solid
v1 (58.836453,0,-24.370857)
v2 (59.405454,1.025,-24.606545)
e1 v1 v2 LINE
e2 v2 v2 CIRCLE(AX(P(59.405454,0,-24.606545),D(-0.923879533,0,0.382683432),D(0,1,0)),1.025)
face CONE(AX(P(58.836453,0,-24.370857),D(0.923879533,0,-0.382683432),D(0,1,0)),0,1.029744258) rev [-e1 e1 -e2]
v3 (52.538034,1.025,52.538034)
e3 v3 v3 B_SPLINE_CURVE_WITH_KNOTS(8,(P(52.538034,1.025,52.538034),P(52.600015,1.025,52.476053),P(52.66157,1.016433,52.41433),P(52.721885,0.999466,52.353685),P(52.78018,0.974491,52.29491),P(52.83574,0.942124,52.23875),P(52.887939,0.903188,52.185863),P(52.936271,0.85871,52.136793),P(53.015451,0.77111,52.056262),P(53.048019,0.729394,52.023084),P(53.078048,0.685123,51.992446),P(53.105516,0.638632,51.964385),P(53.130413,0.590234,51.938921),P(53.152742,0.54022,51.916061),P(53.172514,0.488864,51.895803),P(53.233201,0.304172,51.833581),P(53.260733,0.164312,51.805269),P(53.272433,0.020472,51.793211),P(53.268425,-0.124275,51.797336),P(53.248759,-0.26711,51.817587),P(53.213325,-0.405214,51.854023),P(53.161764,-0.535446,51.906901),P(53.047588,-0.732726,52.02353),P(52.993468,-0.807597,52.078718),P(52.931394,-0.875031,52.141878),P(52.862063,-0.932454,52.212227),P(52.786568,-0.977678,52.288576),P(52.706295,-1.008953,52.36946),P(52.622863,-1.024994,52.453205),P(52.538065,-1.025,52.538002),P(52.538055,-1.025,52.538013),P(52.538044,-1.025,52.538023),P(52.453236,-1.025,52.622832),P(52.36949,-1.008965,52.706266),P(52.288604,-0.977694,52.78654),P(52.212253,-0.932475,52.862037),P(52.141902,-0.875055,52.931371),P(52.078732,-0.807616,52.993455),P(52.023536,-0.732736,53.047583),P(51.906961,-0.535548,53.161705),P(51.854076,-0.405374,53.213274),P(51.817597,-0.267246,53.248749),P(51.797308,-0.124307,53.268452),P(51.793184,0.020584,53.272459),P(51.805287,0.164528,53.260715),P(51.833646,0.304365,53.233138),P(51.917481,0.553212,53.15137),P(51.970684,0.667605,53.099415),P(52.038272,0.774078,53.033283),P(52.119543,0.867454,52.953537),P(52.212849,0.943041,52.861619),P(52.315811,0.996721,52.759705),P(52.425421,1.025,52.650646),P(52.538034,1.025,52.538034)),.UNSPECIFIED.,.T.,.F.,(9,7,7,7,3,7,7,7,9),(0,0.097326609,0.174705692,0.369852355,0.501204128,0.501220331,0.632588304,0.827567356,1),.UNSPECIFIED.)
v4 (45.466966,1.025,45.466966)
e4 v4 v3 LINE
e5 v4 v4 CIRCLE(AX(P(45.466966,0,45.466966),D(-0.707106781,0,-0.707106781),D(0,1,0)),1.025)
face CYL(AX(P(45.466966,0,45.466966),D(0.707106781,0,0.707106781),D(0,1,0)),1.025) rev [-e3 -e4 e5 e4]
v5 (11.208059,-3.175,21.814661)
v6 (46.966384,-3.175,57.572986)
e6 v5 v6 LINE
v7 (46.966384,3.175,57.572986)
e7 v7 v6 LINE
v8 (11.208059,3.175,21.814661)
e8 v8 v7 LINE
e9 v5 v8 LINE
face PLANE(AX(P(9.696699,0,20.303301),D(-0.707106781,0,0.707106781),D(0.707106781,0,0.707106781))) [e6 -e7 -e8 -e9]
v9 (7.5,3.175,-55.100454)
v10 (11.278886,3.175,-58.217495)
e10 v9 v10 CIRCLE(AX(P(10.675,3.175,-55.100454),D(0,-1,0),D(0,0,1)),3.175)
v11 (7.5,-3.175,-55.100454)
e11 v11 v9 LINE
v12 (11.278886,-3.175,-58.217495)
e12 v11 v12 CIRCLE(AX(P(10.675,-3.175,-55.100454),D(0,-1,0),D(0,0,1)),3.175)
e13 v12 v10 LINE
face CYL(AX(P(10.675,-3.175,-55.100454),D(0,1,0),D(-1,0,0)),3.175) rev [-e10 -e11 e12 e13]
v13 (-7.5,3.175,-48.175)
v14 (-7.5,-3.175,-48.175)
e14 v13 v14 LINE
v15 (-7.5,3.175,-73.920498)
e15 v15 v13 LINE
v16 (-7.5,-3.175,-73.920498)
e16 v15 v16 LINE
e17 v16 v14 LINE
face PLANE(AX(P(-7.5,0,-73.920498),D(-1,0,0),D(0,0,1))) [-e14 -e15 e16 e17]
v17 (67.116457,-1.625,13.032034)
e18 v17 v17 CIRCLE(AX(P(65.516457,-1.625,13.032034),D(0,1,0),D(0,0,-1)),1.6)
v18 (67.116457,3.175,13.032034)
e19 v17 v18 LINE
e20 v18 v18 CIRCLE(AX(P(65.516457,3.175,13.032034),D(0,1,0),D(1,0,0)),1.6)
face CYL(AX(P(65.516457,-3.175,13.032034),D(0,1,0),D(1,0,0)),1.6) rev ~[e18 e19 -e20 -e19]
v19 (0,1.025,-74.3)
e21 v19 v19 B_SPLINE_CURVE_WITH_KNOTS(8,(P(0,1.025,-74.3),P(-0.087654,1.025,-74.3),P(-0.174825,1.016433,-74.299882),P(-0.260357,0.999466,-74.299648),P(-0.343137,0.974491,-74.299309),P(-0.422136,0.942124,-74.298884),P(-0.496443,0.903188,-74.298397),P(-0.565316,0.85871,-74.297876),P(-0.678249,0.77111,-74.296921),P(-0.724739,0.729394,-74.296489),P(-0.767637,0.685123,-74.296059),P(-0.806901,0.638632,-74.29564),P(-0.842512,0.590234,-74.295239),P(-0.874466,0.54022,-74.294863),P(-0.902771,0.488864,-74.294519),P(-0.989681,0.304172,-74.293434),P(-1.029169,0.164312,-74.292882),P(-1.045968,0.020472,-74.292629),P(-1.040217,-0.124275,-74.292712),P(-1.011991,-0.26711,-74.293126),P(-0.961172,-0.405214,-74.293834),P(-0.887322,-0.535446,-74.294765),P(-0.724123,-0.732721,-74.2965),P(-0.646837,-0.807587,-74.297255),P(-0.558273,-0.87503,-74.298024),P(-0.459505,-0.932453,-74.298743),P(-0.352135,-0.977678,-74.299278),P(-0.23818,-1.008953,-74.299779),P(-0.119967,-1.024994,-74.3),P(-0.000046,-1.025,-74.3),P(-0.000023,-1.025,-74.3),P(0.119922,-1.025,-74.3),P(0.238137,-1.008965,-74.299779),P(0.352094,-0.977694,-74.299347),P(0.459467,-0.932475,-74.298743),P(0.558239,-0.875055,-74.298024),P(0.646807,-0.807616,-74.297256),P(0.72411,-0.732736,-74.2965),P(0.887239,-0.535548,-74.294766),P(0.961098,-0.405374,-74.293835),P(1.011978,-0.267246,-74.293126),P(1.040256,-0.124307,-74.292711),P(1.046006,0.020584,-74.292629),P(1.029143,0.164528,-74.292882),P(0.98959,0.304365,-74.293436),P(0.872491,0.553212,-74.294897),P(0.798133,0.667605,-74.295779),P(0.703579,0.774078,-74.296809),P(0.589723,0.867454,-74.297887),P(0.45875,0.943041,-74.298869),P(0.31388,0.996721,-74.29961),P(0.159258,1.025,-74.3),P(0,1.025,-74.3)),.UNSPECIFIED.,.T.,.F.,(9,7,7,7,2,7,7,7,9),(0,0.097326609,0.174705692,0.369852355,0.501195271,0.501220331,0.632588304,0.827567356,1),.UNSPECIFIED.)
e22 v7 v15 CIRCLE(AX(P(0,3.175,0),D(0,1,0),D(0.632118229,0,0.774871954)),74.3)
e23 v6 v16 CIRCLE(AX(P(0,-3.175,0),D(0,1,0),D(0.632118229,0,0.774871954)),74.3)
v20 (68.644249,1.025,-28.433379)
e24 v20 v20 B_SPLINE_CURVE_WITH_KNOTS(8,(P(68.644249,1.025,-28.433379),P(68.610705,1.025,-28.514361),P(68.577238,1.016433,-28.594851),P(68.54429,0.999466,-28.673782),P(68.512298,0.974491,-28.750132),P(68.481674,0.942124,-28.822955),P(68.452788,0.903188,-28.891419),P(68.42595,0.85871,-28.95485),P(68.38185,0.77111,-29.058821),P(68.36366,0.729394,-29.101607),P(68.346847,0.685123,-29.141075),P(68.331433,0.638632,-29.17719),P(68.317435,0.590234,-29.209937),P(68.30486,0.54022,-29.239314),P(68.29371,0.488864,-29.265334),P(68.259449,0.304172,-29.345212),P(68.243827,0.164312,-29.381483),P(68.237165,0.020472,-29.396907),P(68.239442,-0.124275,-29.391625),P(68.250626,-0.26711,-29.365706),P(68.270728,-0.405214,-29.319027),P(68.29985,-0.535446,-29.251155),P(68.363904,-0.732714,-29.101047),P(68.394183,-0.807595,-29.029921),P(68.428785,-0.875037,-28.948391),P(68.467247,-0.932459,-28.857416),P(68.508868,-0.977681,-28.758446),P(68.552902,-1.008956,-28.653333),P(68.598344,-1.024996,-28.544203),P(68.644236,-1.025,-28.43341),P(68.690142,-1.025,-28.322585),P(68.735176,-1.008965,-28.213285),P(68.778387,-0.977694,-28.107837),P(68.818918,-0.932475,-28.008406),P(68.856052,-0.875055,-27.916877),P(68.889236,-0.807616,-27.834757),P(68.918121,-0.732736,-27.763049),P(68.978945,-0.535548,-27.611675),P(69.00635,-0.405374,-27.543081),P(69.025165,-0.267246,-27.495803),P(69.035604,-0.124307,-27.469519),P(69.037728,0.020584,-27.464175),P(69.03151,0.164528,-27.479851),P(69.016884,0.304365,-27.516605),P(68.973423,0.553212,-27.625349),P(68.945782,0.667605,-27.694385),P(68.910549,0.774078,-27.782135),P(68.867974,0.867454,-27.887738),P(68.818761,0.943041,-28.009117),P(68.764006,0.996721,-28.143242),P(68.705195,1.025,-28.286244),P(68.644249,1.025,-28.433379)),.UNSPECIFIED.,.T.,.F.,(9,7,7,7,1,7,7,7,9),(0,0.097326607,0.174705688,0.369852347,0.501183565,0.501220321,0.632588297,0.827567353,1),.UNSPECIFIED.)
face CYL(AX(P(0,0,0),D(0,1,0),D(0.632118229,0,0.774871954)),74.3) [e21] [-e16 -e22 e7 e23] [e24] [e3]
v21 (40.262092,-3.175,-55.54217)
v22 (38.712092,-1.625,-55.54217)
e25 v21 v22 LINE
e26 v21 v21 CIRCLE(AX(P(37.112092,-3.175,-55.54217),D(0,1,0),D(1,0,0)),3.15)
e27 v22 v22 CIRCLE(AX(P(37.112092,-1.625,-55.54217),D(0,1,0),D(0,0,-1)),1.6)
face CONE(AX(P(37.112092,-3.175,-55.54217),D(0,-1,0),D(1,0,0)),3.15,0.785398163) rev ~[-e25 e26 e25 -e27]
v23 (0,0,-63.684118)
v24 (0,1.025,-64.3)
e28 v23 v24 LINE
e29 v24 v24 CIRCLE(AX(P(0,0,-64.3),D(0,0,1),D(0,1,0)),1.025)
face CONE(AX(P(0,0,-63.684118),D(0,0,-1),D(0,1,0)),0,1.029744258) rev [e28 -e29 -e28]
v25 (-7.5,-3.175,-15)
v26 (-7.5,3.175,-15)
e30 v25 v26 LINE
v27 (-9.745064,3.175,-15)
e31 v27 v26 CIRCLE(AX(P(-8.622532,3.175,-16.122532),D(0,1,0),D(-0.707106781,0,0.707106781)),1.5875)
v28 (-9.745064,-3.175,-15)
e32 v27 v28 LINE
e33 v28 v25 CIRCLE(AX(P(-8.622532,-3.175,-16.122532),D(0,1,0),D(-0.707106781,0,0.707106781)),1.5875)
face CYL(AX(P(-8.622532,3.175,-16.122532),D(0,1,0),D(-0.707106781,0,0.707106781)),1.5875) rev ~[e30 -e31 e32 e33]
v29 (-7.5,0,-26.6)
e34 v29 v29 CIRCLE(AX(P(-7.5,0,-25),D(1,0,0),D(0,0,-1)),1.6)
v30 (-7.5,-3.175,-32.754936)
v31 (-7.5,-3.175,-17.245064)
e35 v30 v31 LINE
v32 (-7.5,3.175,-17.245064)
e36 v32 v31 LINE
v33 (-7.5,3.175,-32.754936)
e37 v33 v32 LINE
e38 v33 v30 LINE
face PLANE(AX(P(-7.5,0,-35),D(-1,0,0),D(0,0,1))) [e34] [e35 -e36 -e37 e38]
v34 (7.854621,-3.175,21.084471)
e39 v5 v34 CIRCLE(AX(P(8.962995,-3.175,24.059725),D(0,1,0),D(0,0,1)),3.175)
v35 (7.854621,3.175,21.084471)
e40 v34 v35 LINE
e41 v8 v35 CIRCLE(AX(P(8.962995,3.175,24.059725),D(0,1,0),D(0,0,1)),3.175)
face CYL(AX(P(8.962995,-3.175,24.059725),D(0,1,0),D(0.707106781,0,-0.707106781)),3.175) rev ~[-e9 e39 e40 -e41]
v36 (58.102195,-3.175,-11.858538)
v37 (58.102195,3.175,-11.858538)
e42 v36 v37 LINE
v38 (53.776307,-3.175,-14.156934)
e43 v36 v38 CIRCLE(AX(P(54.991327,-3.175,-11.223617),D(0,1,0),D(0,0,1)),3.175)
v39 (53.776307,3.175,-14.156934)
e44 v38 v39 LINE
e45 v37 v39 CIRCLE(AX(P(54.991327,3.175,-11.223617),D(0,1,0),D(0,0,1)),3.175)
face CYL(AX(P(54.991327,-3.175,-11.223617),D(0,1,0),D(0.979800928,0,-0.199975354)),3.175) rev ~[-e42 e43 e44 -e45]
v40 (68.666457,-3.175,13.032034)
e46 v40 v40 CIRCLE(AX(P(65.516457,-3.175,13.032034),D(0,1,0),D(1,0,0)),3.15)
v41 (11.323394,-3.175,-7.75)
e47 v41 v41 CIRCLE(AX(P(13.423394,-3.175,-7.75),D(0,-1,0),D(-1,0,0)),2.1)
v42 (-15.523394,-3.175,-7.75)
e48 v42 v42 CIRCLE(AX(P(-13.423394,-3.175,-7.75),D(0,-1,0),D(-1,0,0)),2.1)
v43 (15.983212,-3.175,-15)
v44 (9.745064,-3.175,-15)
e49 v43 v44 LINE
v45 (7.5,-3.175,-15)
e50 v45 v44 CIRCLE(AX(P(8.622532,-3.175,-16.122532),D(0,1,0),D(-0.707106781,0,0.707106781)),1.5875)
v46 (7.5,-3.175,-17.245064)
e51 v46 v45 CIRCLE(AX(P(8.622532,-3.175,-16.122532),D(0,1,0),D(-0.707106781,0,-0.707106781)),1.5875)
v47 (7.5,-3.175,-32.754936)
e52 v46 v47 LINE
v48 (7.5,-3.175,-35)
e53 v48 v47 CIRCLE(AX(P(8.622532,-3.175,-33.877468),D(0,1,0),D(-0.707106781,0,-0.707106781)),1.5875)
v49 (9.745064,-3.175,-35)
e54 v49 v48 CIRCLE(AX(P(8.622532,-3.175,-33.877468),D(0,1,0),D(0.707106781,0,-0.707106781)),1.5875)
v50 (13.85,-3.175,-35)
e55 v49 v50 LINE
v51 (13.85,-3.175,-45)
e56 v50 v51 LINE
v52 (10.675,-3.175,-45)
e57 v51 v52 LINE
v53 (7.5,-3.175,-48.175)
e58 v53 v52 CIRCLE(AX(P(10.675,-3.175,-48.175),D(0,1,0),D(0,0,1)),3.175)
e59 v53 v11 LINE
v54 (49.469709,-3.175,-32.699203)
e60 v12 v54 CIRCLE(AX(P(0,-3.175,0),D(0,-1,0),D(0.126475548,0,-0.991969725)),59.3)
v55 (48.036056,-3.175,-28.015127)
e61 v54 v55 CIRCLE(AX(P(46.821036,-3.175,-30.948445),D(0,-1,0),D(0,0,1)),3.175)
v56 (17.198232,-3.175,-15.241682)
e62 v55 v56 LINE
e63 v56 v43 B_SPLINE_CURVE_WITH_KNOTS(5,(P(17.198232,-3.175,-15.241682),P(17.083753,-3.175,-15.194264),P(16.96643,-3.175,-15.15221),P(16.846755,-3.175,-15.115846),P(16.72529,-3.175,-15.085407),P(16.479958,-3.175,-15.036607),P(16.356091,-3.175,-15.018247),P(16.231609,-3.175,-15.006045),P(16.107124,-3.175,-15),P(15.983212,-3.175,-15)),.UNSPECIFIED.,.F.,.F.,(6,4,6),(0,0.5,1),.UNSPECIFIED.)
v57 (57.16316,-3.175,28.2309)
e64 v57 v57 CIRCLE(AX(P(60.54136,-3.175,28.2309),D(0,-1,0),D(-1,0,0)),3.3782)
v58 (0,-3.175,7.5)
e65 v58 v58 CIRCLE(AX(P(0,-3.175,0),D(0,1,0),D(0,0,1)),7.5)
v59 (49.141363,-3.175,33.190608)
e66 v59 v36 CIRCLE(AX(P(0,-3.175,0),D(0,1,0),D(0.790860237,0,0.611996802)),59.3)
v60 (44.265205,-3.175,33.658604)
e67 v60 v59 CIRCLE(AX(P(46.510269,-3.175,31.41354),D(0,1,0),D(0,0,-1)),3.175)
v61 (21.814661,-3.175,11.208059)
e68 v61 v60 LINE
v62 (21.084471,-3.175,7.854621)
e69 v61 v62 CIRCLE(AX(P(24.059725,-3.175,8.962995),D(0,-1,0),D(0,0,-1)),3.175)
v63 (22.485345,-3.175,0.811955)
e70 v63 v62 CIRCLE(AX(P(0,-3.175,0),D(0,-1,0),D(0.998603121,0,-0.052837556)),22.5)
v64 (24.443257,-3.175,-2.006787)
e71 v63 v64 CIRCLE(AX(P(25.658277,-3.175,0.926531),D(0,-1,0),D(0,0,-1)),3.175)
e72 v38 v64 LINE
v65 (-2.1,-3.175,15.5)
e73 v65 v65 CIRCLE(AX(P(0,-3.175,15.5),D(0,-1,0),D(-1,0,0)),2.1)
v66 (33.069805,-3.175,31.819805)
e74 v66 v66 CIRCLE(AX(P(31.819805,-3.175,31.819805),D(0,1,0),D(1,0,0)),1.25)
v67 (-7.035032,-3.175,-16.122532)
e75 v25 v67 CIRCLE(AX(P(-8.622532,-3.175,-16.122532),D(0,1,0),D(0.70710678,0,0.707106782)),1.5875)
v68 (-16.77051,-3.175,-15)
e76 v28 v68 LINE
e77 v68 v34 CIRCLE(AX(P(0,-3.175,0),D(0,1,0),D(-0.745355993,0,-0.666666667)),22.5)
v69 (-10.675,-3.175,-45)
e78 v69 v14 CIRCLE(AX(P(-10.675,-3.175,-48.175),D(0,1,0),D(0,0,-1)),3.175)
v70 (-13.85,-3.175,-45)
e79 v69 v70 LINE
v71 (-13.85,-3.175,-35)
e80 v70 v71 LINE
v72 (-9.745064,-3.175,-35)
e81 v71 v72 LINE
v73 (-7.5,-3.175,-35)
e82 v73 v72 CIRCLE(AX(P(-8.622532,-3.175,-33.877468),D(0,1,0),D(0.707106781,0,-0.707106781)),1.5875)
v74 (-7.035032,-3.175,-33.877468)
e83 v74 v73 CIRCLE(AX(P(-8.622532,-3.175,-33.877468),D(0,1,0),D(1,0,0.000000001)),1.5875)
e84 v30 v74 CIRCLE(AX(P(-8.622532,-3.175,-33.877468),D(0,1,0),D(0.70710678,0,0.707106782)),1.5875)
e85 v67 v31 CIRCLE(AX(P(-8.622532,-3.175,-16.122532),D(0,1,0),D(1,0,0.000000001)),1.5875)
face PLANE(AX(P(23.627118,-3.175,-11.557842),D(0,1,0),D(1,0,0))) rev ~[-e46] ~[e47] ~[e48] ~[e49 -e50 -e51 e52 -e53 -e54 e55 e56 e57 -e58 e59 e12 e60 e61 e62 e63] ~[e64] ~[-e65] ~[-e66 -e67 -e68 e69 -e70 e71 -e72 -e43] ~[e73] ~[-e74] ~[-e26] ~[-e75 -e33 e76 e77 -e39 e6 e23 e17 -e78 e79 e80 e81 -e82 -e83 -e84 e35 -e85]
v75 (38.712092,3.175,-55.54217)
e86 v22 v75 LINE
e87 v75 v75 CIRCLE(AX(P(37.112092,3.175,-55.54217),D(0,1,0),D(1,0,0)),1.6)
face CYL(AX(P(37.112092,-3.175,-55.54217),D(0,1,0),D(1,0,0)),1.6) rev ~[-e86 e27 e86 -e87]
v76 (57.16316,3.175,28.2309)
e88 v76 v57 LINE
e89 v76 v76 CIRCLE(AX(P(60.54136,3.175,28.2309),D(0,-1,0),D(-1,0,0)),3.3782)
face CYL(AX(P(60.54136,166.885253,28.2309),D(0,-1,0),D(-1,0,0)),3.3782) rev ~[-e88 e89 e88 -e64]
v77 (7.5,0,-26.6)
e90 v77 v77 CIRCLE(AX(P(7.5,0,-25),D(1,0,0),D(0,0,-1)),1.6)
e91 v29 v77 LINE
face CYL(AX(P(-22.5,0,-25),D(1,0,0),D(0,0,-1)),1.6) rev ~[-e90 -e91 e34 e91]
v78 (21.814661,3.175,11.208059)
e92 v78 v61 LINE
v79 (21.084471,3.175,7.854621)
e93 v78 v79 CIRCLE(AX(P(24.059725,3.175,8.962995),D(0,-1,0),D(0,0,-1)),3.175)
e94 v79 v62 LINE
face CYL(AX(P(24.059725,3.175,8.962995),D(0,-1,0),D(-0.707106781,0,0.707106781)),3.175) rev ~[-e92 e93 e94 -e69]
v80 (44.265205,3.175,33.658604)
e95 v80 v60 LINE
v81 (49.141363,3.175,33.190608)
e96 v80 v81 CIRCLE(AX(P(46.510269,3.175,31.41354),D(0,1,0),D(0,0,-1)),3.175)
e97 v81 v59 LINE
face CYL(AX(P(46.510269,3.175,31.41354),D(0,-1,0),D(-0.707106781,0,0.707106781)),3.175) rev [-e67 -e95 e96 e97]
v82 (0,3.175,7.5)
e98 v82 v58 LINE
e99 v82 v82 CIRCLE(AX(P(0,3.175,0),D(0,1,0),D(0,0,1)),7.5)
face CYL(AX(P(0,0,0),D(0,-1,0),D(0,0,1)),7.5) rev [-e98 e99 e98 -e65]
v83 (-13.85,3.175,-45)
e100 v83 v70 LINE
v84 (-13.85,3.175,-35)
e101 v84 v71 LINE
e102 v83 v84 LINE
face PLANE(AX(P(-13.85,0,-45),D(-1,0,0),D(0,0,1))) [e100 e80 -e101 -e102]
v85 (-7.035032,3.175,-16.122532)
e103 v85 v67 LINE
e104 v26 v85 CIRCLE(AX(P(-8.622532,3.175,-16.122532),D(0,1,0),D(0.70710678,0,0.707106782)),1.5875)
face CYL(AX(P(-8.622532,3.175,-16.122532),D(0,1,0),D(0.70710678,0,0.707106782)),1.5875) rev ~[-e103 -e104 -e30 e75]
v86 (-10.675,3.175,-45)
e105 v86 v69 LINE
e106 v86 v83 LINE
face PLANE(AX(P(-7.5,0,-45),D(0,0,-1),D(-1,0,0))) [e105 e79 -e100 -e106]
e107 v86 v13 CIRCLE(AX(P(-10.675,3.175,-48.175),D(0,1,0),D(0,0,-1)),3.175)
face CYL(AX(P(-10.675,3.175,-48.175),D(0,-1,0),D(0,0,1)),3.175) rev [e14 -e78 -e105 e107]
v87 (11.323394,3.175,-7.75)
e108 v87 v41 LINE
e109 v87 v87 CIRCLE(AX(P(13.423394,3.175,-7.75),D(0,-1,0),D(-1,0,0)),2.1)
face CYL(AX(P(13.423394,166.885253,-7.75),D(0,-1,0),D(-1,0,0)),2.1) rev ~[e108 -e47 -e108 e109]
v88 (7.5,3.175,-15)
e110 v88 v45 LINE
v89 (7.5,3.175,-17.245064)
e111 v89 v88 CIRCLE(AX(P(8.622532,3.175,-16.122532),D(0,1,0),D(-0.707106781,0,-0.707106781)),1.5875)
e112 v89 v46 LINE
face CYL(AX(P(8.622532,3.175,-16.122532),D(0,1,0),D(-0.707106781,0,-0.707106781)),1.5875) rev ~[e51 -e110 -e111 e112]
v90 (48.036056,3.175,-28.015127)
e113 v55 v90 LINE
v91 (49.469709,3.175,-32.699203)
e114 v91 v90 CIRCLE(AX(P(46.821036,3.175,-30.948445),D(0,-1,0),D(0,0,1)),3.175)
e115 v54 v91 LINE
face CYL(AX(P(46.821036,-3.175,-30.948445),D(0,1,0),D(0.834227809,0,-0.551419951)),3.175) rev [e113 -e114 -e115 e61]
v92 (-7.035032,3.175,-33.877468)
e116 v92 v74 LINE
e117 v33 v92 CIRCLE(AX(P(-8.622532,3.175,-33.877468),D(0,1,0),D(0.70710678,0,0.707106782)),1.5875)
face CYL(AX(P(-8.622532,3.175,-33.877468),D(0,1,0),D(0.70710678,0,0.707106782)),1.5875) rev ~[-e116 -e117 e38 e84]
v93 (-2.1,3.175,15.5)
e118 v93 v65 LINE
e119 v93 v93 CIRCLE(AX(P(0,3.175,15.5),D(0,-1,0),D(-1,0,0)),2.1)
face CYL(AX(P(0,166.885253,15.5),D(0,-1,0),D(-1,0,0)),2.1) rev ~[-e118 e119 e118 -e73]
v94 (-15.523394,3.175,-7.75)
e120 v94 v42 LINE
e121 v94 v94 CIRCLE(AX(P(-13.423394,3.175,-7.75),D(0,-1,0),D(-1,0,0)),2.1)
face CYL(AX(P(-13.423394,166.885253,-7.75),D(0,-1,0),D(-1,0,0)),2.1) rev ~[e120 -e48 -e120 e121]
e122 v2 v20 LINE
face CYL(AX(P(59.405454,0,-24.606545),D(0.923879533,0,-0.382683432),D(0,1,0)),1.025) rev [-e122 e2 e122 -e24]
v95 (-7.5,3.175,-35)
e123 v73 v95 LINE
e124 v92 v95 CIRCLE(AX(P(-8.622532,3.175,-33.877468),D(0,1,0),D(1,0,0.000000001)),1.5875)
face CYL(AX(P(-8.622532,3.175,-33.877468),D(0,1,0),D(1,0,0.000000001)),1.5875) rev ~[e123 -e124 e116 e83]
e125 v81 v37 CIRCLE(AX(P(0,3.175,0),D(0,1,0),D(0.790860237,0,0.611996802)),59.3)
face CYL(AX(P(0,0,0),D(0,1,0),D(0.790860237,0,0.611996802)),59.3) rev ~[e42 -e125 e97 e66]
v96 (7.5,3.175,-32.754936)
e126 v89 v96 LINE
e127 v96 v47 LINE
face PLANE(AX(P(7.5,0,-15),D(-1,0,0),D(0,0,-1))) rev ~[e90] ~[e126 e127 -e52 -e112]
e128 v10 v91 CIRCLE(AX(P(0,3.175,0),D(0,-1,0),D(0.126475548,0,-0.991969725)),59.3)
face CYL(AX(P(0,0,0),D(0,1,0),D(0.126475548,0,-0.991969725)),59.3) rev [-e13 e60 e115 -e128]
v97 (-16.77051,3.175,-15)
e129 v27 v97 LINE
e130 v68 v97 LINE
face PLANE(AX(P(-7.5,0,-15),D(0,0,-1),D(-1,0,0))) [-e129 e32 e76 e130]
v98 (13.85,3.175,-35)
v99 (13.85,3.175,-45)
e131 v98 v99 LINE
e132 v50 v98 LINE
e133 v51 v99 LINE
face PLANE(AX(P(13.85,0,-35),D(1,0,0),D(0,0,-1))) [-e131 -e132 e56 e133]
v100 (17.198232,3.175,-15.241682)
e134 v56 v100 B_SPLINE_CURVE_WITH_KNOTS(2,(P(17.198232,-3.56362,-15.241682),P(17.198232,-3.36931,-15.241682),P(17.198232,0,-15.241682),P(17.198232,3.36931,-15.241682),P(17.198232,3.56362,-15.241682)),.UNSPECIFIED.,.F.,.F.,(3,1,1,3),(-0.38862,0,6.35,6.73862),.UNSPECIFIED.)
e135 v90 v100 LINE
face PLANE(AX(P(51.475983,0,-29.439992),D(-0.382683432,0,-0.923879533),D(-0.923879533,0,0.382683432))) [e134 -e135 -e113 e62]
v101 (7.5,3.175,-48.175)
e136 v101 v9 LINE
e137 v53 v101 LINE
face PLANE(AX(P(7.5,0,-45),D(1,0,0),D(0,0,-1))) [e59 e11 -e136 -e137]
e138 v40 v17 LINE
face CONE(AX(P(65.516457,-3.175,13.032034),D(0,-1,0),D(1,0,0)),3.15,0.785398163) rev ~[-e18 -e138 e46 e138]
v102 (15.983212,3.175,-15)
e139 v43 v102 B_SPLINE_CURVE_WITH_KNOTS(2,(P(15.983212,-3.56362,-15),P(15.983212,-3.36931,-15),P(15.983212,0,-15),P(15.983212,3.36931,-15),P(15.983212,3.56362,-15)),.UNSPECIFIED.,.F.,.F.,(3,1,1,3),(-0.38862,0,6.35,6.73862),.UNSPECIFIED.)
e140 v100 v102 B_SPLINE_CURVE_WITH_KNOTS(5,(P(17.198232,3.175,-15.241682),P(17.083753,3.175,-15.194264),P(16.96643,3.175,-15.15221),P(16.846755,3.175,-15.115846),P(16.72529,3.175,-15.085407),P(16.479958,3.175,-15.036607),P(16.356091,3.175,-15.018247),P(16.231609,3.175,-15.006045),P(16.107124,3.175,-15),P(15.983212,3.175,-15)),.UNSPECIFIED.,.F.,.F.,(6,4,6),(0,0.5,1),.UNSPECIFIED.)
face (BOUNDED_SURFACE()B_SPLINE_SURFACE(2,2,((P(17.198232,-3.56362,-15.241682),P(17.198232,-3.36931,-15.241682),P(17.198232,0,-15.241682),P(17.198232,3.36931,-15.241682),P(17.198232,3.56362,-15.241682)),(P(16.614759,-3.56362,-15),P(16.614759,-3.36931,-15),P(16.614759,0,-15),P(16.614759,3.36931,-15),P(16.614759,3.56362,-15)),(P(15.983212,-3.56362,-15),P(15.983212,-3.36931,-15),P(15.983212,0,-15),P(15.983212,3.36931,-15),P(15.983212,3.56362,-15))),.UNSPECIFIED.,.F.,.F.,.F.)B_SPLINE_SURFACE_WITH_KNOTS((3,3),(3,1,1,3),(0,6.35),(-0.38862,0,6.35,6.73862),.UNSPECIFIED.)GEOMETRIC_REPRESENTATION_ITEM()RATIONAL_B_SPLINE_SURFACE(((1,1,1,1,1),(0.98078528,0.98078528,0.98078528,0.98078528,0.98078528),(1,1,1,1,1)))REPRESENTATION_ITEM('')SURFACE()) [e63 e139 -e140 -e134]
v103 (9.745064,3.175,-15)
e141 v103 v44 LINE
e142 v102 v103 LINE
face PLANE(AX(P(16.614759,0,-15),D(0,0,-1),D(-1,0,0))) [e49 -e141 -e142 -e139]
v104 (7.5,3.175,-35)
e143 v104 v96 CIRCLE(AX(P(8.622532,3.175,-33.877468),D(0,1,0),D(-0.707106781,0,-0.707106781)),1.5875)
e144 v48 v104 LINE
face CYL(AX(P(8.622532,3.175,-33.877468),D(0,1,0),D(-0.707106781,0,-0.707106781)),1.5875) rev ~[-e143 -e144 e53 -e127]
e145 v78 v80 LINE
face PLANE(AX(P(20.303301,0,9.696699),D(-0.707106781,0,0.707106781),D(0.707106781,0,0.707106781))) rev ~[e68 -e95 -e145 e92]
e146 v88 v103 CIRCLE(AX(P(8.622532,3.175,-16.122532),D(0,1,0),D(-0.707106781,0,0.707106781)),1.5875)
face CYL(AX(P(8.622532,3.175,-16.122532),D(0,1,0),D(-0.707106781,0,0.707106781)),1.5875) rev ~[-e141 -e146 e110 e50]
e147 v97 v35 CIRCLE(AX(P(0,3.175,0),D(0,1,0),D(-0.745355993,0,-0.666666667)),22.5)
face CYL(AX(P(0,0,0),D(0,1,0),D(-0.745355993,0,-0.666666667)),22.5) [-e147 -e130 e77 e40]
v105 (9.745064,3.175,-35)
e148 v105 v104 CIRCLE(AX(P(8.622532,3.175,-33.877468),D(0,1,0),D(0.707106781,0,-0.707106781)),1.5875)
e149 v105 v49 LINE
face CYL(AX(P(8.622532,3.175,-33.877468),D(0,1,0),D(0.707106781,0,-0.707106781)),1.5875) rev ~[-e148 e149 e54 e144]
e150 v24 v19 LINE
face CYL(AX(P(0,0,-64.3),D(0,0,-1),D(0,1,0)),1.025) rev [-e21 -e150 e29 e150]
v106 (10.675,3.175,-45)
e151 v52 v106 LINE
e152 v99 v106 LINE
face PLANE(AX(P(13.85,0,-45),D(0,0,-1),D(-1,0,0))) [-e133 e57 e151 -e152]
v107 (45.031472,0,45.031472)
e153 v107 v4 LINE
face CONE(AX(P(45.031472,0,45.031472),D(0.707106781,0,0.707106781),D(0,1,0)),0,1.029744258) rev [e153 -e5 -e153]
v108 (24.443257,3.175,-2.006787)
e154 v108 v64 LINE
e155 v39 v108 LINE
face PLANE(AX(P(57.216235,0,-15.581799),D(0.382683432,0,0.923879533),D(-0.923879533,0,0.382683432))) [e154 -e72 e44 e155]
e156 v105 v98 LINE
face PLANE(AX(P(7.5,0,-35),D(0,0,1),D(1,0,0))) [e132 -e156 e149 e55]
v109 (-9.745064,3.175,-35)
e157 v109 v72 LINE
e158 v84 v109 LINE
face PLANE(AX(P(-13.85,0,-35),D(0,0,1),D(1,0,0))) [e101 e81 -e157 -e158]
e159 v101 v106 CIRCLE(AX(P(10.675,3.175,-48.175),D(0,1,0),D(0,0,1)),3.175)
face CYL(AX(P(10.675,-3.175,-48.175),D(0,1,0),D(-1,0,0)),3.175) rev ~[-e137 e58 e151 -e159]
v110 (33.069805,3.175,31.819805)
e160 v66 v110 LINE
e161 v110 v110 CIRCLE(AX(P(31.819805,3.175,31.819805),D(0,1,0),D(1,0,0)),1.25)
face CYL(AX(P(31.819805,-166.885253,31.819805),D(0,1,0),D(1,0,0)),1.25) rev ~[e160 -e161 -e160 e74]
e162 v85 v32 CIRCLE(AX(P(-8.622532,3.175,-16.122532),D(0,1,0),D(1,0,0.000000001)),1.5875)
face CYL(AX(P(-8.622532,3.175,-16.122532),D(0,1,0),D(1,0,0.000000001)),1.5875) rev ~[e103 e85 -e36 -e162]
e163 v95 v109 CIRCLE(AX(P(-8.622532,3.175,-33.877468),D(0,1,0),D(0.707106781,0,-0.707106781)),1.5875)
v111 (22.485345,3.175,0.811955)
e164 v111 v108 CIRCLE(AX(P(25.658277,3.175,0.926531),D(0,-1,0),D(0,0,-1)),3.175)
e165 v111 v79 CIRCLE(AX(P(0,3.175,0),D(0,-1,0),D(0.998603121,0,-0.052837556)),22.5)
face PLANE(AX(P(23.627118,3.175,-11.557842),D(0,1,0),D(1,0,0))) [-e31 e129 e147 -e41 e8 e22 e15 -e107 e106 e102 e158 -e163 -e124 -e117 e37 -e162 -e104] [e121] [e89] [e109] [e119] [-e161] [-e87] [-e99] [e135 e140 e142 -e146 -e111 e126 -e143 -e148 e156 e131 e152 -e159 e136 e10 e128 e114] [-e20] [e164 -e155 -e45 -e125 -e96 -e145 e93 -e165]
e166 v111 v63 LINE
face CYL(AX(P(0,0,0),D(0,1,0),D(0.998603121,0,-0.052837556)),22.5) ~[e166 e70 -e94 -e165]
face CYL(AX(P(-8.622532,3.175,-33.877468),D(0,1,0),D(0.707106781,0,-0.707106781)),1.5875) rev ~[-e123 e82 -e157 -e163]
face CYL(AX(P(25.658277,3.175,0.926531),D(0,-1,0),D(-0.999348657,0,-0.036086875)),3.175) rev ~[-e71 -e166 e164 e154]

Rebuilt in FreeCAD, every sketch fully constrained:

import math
import FreeCAD as App
import Part
import Sketcher
Q = App.Units.Quantity


def edges_at(feature, points):
    """Names of the edges that pass closest to the given points."""
    edges = feature.Shape.Edges
    near = lambda p: min(range(len(edges)), key=lambda i: edges[i].distToShape(Part.Vertex(*p))[0])
    return sorted({f"Edge{near(p) + 1}" for p in points})


def add_polygon(sketch, points):
    """Adds a closed chain of lines whose ends are joined by coincident constraints."""
    first, n = sketch.GeometryCount, len(points)
    for a, b in zip(points, points[1:] + points[:1]):
        sketch.addGeometry(Part.LineSegment(App.Vector(*a, 0), App.Vector(*b, 0)), False)
    for i in range(n):
        sketch.addConstraint(Sketcher.Constraint("Coincident", first + i, 2, first + (i + 1) % n, 1))

doc = App.newDocument("Part")
body = doc.addObject("PartDesign::Body", "Body")

sketch1 = body.newObject("Sketcher::SketchObject", "Sketch")
sketch1.AttachmentSupport = (doc.getObject("XZ_Plane"), [""])
sketch1.MapMode = "FlatFace"
sketch1.addGeometry(Part.LineSegment(App.Vector(-13.85, -35, 0), App.Vector(-7.5, -35, 0)), False)
sketch1.addGeometry(Part.LineSegment(App.Vector(-7.5, -35, 0), App.Vector(-7.5, -15, 0)), False)
sketch1.addGeometry(Part.LineSegment(App.Vector(-7.5, -15, 0), App.Vector(-16.77, -15, 0)), False)
sketch1.addGeometry(Part.ArcOfCircle(Part.Circle(App.Vector(0, 0, 0), App.Vector(0, 0, 1), 22.5), math.radians(64), math.radians(222)), False)
sketch1.addGeometry(Part.LineSegment(App.Vector(9.7, 20.3, 0), App.Vector(46.97, 57.57, 0)), False)
sketch1.addGeometry(Part.ArcOfCircle(Part.Circle(App.Vector(0, 0, 0), App.Vector(0, 0, 1), 74.3), math.radians(-96), math.radians(51)), False)
sketch1.addGeometry(Part.LineSegment(App.Vector(-7.5, -73.92, 0), App.Vector(-7.5, -45, 0)), False)
sketch1.addGeometry(Part.LineSegment(App.Vector(-7.5, -45, 0), App.Vector(-13.85, -45, 0)), False)
sketch1.addGeometry(Part.LineSegment(App.Vector(-13.85, -45, 0), App.Vector(-13.85, -35, 0)), False)
sketch1.addGeometry(Part.Circle(App.Vector(0, 0, 0), App.Vector(0, 0, 1), 7.5), False)
sketch1.addGeometry(Part.LineSegment(App.Vector(46.9, 36.29, 0), App.Vector(20.3, 9.7, 0)), False)
sketch1.addGeometry(Part.ArcOfCircle(Part.Circle(App.Vector(0, 0, 0), App.Vector(0, 0, 1), 22.5), math.radians(-3), math.radians(26)), False)
sketch1.addGeometry(Part.LineSegment(App.Vector(22.47, -1.19, 0), App.Vector(57.22, -15.58, 0)), False)
sketch1.addGeometry(Part.ArcOfCircle(Part.Circle(App.Vector(0, 0, 0), App.Vector(0, 0, 1), 59.3), math.radians(-15), math.radians(38)), False)
sketch1.addGeometry(Part.LineSegment(App.Vector(16.61, -15, 0), App.Vector(7.5, -15, 0)), False)
sketch1.addGeometry(Part.LineSegment(App.Vector(7.5, -15, 0), App.Vector(7.5, -35, 0)), False)
sketch1.addGeometry(Part.LineSegment(App.Vector(7.5, -35, 0), App.Vector(13.85, -35, 0)), False)
sketch1.addGeometry(Part.LineSegment(App.Vector(13.85, -35, 0), App.Vector(13.85, -45, 0)), False)
sketch1.addGeometry(Part.LineSegment(App.Vector(13.85, -45, 0), App.Vector(7.5, -45, 0)), False)
sketch1.addGeometry(Part.LineSegment(App.Vector(7.5, -45, 0), App.Vector(7.5, -58.82, 0)), False)
sketch1.addGeometry(Part.ArcOfCircle(Part.Circle(App.Vector(0, 0, 0), App.Vector(0, 0, 1), 59.3), math.radians(-83), math.radians(-30)), False)
sketch1.addGeometry(Part.LineSegment(App.Vector(51.48, -29.44, 0), App.Vector(16.73, -15.05, 0)), False)
sketch1.addGeometry(Part.LineSegment(App.Vector(16.73, -15.05, 0), App.Vector(16.61, -15, 0)), False)
sketch1.addConstraint(Sketcher.Constraint("Coincident", 0, 2, 1, 1))
sketch1.addConstraint(Sketcher.Constraint("Coincident", 1, 2, 2, 1))
sketch1.addConstraint(Sketcher.Constraint("Coincident", 2, 2, 3, 2))
sketch1.addConstraint(Sketcher.Constraint("Coincident", 3, 1, 4, 1))
sketch1.addConstraint(Sketcher.Constraint("Coincident", 4, 2, 5, 2))
sketch1.addConstraint(Sketcher.Constraint("Coincident", 5, 1, 6, 1))
sketch1.addConstraint(Sketcher.Constraint("Coincident", 6, 2, 7, 1))
sketch1.addConstraint(Sketcher.Constraint("Coincident", 7, 2, 8, 1))
sketch1.addConstraint(Sketcher.Constraint("Coincident", 8, 2, 0, 1))
sketch1.addConstraint(Sketcher.Constraint("Coincident", 10, 2, 11, 2))
sketch1.addConstraint(Sketcher.Constraint("Coincident", 11, 1, 12, 1))
sketch1.addConstraint(Sketcher.Constraint("Coincident", 12, 2, 13, 1))
sketch1.addConstraint(Sketcher.Constraint("Coincident", 13, 2, 10, 1))
sketch1.addConstraint(Sketcher.Constraint("Coincident", 14, 2, 15, 1))
sketch1.addConstraint(Sketcher.Constraint("Coincident", 15, 2, 16, 1))
sketch1.addConstraint(Sketcher.Constraint("Coincident", 16, 2, 17, 1))
sketch1.addConstraint(Sketcher.Constraint("Coincident", 17, 2, 18, 1))
sketch1.addConstraint(Sketcher.Constraint("Coincident", 18, 2, 19, 1))
sketch1.addConstraint(Sketcher.Constraint("Coincident", 19, 2, 20, 1))
sketch1.addConstraint(Sketcher.Constraint("Coincident", 20, 2, 21, 1))
sketch1.addConstraint(Sketcher.Constraint("Coincident", 21, 2, 22, 1))
sketch1.addConstraint(Sketcher.Constraint("Coincident", 22, 2, 14, 1))
sketch1.addConstraint(Sketcher.Constraint("Horizontal", 0))
sketch1.addConstraint(Sketcher.Constraint("Vertical", 1))
sketch1.addConstraint(Sketcher.Constraint("Horizontal", 2))
sketch1.addConstraint(Sketcher.Constraint("Vertical", 6))
sketch1.addConstraint(Sketcher.Constraint("Horizontal", 7))
sketch1.addConstraint(Sketcher.Constraint("Vertical", 8))
sketch1.addConstraint(Sketcher.Constraint("Horizontal", 14))
sketch1.addConstraint(Sketcher.Constraint("Vertical", 15))
sketch1.addConstraint(Sketcher.Constraint("Horizontal", 16))
sketch1.addConstraint(Sketcher.Constraint("Vertical", 17))
sketch1.addConstraint(Sketcher.Constraint("Horizontal", 18))
sketch1.addConstraint(Sketcher.Constraint("Vertical", 19))
sketch1.addConstraint(Sketcher.Constraint("Coincident", 3, 3, -1, 1))
sketch1.addConstraint(Sketcher.Constraint("Coincident", 5, 3, -1, 1))
sketch1.addConstraint(Sketcher.Constraint("Coincident", 9, 3, -1, 1))
sketch1.addConstraint(Sketcher.Constraint("Coincident", 11, 3, -1, 1))
sketch1.addConstraint(Sketcher.Constraint("Coincident", 13, 3, -1, 1))
sketch1.addConstraint(Sketcher.Constraint("Coincident", 20, 3, -1, 1))
sketch1.addConstraint(Sketcher.Constraint("Equal", 3, 11))
sketch1.addConstraint(Sketcher.Constraint("Equal", 13, 20))
sketch1.addConstraint(Sketcher.Constraint("Symmetric", 1, 2, 14, 2, -2))
sketch1.addConstraint(Sketcher.Constraint("Symmetric", 8, 2, 16, 2, -2))
sketch1.addConstraint(Sketcher.Constraint("Symmetric", 6, 2, 18, 2, -2))
sketch1.addConstraint(Sketcher.Constraint("Parallel", 4, 10))
sketch1.addConstraint(Sketcher.Constraint("Parallel", 12, 21))
sketch1.addConstraint(Sketcher.Constraint("Parallel", 21, 22))
sketch1.addConstraint(Sketcher.Constraint("Vertical", 1, 2, 5, 1))
sketch1.addConstraint(Sketcher.Constraint("Equal", 10, 12))
sketch1.addConstraint(Sketcher.Constraint("Equal", 12, 21))
sketch1.addConstraint(Sketcher.Constraint("Diameter", 9, Q("15 mm")))
sketch1.addConstraint(Sketcher.Constraint("Radius", 3, Q("22.5 mm")))
sketch1.addConstraint(Sketcher.Constraint("Radius", 5, Q("74.3 mm")))
sketch1.addConstraint(Sketcher.Constraint("Radius", 13, Q("59.3 mm")))
sketch1.addConstraint(Sketcher.Constraint("DistanceY", 1, 1, 1, 2, Q("20 mm")))
sketch1.addConstraint(Sketcher.Constraint("DistanceY", 8, 1, 8, 2, Q("10 mm")))
sketch1.addConstraint(Sketcher.Constraint("Angle", 4, Q("45 deg")))
sketch1.addConstraint(Sketcher.Constraint("DistanceY", 0, 2, -1, 1, Q("35 mm")))
sketch1.addConstraint(Sketcher.Constraint("Angle", 12, Q("-22.5 deg")))
sketch1.addConstraint(Sketcher.Constraint("DistanceX", 1, 2, 14, 2, Q("15 mm")))
sketch1.addConstraint(Sketcher.Constraint("DistanceX", 0, 1, 0, 2, Q("6.35 mm")))
sketch1.addConstraint(Sketcher.Constraint("Distance", 10, Q("37.610601 mm")))
sketch1.addConstraint(Sketcher.Constraint("DistanceX", 14, 2, 14, 1, Q("9.114759 mm")))
sketch1.addConstraint(Sketcher.Constraint("DistanceX", -1, 1, 3, 1, Q("9.696699 mm")))
pad1 = body.newObject("PartDesign::Pad", "Pad")
pad1.Profile = sketch1
pad1.Length = 6.35
pad1.Midplane = True

sketch2 = body.newObject("Sketcher::SketchObject", "Sketch001")
sketch2.AttachmentSupport = (doc.getObject("XZ_Plane"), [""])
sketch2.MapMode = "FlatFace"
sketch2.AttachmentOffset = App.Placement(App.Vector(0, 0, -3.175), App.Rotation())
sketch2.addGeometry(Part.Circle(App.Vector(0, 15.5, 0), App.Vector(0, 0, 1), 2.1), False)
sketch2.addGeometry(Part.Circle(App.Vector(-13.4, -7.8, 0), App.Vector(0, 0, 1), 2.1), False)
sketch2.addGeometry(Part.Circle(App.Vector(13.4, -7.8, 0), App.Vector(0, 0, 1), 2.1), False)
sketch2.addConstraint(Sketcher.Constraint("Equal", 0, 1))
sketch2.addConstraint(Sketcher.Constraint("Equal", 1, 2))
sketch2.addConstraint(Sketcher.Constraint("Symmetric", 1, 3, 2, 3, -2))
sketch2.addConstraint(Sketcher.Constraint("PointOnObject", 0, 3, -2))
sketch2.addConstraint(Sketcher.Constraint("Diameter", 0, Q("4.2 mm")))
sketch2.addConstraint(Sketcher.Constraint("DistanceY", -1, 1, 0, 3, Q("15.5 mm")))
sketch2.addConstraint(Sketcher.Constraint("DistanceY", 1, 3, -1, 1, Q("7.75 mm")))
sketch2.addConstraint(Sketcher.Constraint("DistanceX", 1, 3, -1, 1, Q("13.423394 mm")))
doc.recompute()
hole = body.newObject("PartDesign::Hole", "Hole")
hole.Profile = sketch2
hole.ThreadType = "None"
hole.Diameter = 4.2
hole.DepthType = "ThroughAll"
hole.Reversed = True

sketch3 = body.newObject("Sketcher::SketchObject", "Sketch002")
sketch3.AttachmentSupport = (doc.getObject("YZ_Plane"), [""])
sketch3.MapMode = "FlatFace"
add_polygon(sketch3, [(0, -63.7), (0, -74.3), (1, -74.3), (1, -64.3)])
sketch3.addConstraint(Sketcher.Constraint("Vertical", 0))
sketch3.addConstraint(Sketcher.Constraint("Horizontal", 1))
sketch3.addConstraint(Sketcher.Constraint("Vertical", 2))
sketch3.addConstraint(Sketcher.Constraint("PointOnObject", 0, 2, -2))
sketch3.addConstraint(Sketcher.Constraint("DistanceY", 2, 1, 2, 2, Q("10 mm")))
sketch3.addConstraint(Sketcher.Constraint("Angle", 3, Q("149 deg")))
sketch3.addConstraint(Sketcher.Constraint("DistanceY", 0, 2, -1, 1, Q("74.3 mm")))
sketch3.addConstraint(Sketcher.Constraint("DistanceX", 1, 1, 1, 2, Q("1.025 mm")))
groove = body.newObject("PartDesign::Groove", "Groove")
groove.Profile = sketch3
groove.ReferenceAxis = (sketch3, ["V_Axis"])
groove.Angle = 360
doc.recompute()

polarpattern = body.newObject("PartDesign::PolarPattern", "PolarPattern")
polarpattern.Originals = [groove]
polarpattern.Axis = (doc.getObject("Y_Axis"), [""])
polarpattern.Angle = 135
polarpattern.Occurrences = 3
polarpattern.Reversed = True
body.Tip = polarpattern

sketch4 = body.newObject("Sketcher::SketchObject", "Sketch003")
sketch4.AttachmentSupport = (doc.getObject("YZ_Plane"), [""])
sketch4.MapMode = "FlatFace"
sketch4.AttachmentOffset = App.Placement(App.Vector(0, 0, -7.5), App.Rotation())
sketch4.addGeometry(Part.Circle(App.Vector(0, -25, 0), App.Vector(0, 0, 1), 1.6), False)
sketch4.addConstraint(Sketcher.Constraint("PointOnObject", 0, 3, -2))
sketch4.addConstraint(Sketcher.Constraint("Diameter", 0, Q("3.2 mm")))
sketch4.addConstraint(Sketcher.Constraint("DistanceY", 0, 3, -1, 1, Q("25 mm")))
doc.recompute()
hole2 = body.newObject("PartDesign::Hole", "Hole001")
hole2.Profile = sketch4
hole2.ThreadType = "None"
hole2.Diameter = 3.2
hole2.DepthType = "Dimension"
hole2.Depth = 15
hole2.DrillPoint = "Flat"
hole2.Reversed = True

sketch5 = body.newObject("Sketcher::SketchObject", "Sketch004")
sketch5.AttachmentSupport = (doc.getObject("XZ_Plane"), [""])
sketch5.MapMode = "FlatFace"
sketch5.AttachmentOffset = App.Placement(App.Vector(0, 0, 3.175), App.Rotation())
sketch5.addGeometry(Part.Circle(App.Vector(37.1, -55.5, 0), App.Vector(0, 0, 1), 1.6), False)
sketch5.addGeometry(Part.Circle(App.Vector(65.5, 13, 0), App.Vector(0, 0, 1), 1.6), False)
sketch5.addConstraint(Sketcher.Constraint("Equal", 0, 1))
sketch5.addConstraint(Sketcher.Constraint("Diameter", 0, Q("3.2 mm")))
sketch5.addConstraint(Sketcher.Constraint("DistanceX", -1, 1, 0, 3, Q("37.112092 mm")))
sketch5.addConstraint(Sketcher.Constraint("DistanceY", 0, 3, -1, 1, Q("55.54217 mm")))
sketch5.addConstraint(Sketcher.Constraint("DistanceX", -1, 1, 1, 3, Q("65.516457 mm")))
sketch5.addConstraint(Sketcher.Constraint("DistanceY", -1, 1, 1, 3, Q("13.032034 mm")))
doc.recompute()
hole3 = body.newObject("PartDesign::Hole", "Hole002")
hole3.Profile = sketch5
hole3.ThreadType = "None"
hole3.Diameter = 3.2
hole3.DepthType = "ThroughAll"
hole3.HoleCutType = "Countersink"
hole3.HoleCutDiameter = 6.3
hole3.HoleCutCountersinkAngle = 90

sketch6 = body.newObject("Sketcher::SketchObject", "Sketch005")
sketch6.AttachmentSupport = (doc.getObject("XZ_Plane"), [""])
sketch6.MapMode = "FlatFace"
sketch6.AttachmentOffset = App.Placement(App.Vector(0, 0, 3.175), App.Rotation())
sketch6.addGeometry(Part.Circle(App.Vector(31.8, 31.8, 0), App.Vector(0, 0, 1), 1.2), False)
sketch6.addConstraint(Sketcher.Constraint("Diameter", 0, Q("2.5 mm")))
sketch6.addConstraint(Sketcher.Constraint("DistanceX", -1, 1, 0, 3, Q("31.819805 mm")))
sketch6.addConstraint(Sketcher.Constraint("DistanceY", -1, 1, 0, 3, Q("31.819805 mm")))
doc.recompute()
hole4 = body.newObject("PartDesign::Hole", "Hole003")
hole4.Profile = sketch6
hole4.ThreadType = "None"
hole4.Diameter = 2.5
hole4.DepthType = "ThroughAll"

sketch7 = body.newObject("Sketcher::SketchObject", "Sketch006")
sketch7.AttachmentSupport = (doc.getObject("XZ_Plane"), [""])
sketch7.MapMode = "FlatFace"
sketch7.AttachmentOffset = App.Placement(App.Vector(0, 0, -3.175), App.Rotation())
sketch7.addGeometry(Part.ArcOfCircle(Part.Circle(App.Vector(-8.6, -16.1, 0), App.Vector(0, 0, 1), 1.6), math.radians(-45), math.radians(0)), False)
sketch7.addGeometry(Part.LineSegment(App.Vector(-7.5, -17.2, 0), App.Vector(-7.5, -15, 0)), False)
sketch7.addGeometry(Part.ArcOfCircle(Part.Circle(App.Vector(-8.6, -16.1, 0), App.Vector(0, 0, 1), 1.6), math.radians(0), math.radians(45)), False)
sketch7.addConstraint(Sketcher.Constraint("Coincident", 0, 1, 1, 1))
sketch7.addConstraint(Sketcher.Constraint("Coincident", 1, 2, 2, 2))
sketch7.addConstraint(Sketcher.Constraint("Tangent", 2, 1, 0, 2))
sketch7.addConstraint(Sketcher.Constraint("Vertical", 1))
sketch7.addConstraint(Sketcher.Constraint("Equal", 0, 2))
sketch7.addConstraint(Sketcher.Constraint("Horizontal", 0, 3, 2, 1))
sketch7.addConstraint(Sketcher.Constraint("DistanceY", 1, 2, -1, 1, Q("15 mm")))
sketch7.addConstraint(Sketcher.Constraint("DistanceX", 0, 1, -1, 1, Q("7.5 mm")))
sketch7.addConstraint(Sketcher.Constraint("Radius", 0, Q("1.5875 mm")))
sketch7.addConstraint(Sketcher.Constraint("DistanceY", 1, 1, 1, 2, Q("2.245064 mm")))
pocket1 = body.newObject("PartDesign::Pocket", "Pocket")
pocket1.Profile = sketch7
pocket1.Type = "UpToFirst"
pocket1.Reversed = True

sketch8 = body.newObject("Sketcher::SketchObject", "Sketch007")
sketch8.AttachmentSupport = (doc.getObject("XZ_Plane"), [""])
sketch8.MapMode = "FlatFace"
sketch8.AttachmentOffset = App.Placement(App.Vector(0, 0, -3.175), App.Rotation())
sketch8.addGeometry(Part.ArcOfCircle(Part.Circle(App.Vector(-8.6, -16.1, 0), App.Vector(0, 0, 1), 1.6), math.radians(45), math.radians(135)), False)
sketch8.addGeometry(Part.LineSegment(App.Vector(-7.5, -15, 0), App.Vector(-9.7, -15, 0)), False)
sketch8.addConstraint(Sketcher.Constraint("Coincident", 0, 1, 1, 1))
sketch8.addConstraint(Sketcher.Constraint("Coincident", 1, 2, 0, 2))
sketch8.addConstraint(Sketcher.Constraint("Horizontal", 1))
sketch8.addConstraint(Sketcher.Constraint("DistanceY", 0, 1, -1, 1, Q("15 mm")))
sketch8.addConstraint(Sketcher.Constraint("DistanceX", 0, 1, -1, 1, Q("7.5 mm")))
sketch8.addConstraint(Sketcher.Constraint("Radius", 0, Q("1.5875 mm")))
sketch8.addConstraint(Sketcher.Constraint("DistanceX", 1, 2, 1, 1, Q("2.245064 mm")))
pocket2 = body.newObject("PartDesign::Pocket", "Pocket001")
pocket2.Profile = sketch8
pocket2.Type = "UpToFirst"
pocket2.Reversed = True

sketch9 = body.newObject("Sketcher::SketchObject", "Sketch008")
sketch9.AttachmentSupport = (doc.getObject("XZ_Plane"), [""])
sketch9.MapMode = "FlatFace"
sketch9.AttachmentOffset = App.Placement(App.Vector(0, 0, -3.175), App.Rotation())
sketch9.addGeometry(Part.ArcOfCircle(Part.Circle(App.Vector(8.6, -16.1, 0), App.Vector(0, 0, 1), 1.6), math.radians(45), math.radians(135)), False)
sketch9.addGeometry(Part.LineSegment(App.Vector(9.7, -15, 0), App.Vector(7.5, -15, 0)), False)
sketch9.addConstraint(Sketcher.Constraint("Coincident", 0, 1, 1, 1))
sketch9.addConstraint(Sketcher.Constraint("Coincident", 1, 2, 0, 2))
sketch9.addConstraint(Sketcher.Constraint("Horizontal", 1))
sketch9.addConstraint(Sketcher.Constraint("DistanceY", 0, 1, -1, 1, Q("15 mm")))
sketch9.addConstraint(Sketcher.Constraint("DistanceX", -1, 1, 1, 2, Q("7.5 mm")))
sketch9.addConstraint(Sketcher.Constraint("Radius", 0, Q("1.5875 mm")))
sketch9.addConstraint(Sketcher.Constraint("DistanceX", 1, 2, 1, 1, Q("2.245064 mm")))
pocket3 = body.newObject("PartDesign::Pocket", "Pocket002")
pocket3.Profile = sketch9
pocket3.Type = "UpToFirst"
pocket3.Reversed = True

sketch10 = body.newObject("Sketcher::SketchObject", "Sketch009")
sketch10.AttachmentSupport = (doc.getObject("XZ_Plane"), [""])
sketch10.MapMode = "FlatFace"
sketch10.AttachmentOffset = App.Placement(App.Vector(0, 0, -3.175), App.Rotation())
sketch10.addGeometry(Part.ArcOfCircle(Part.Circle(App.Vector(8.6, -16.1, 0), App.Vector(0, 0, 1), 1.6), math.radians(135), math.radians(225)), False)
sketch10.addGeometry(Part.LineSegment(App.Vector(7.5, -15, 0), App.Vector(7.5, -17.2, 0)), False)
sketch10.addConstraint(Sketcher.Constraint("Coincident", 0, 1, 1, 1))
sketch10.addConstraint(Sketcher.Constraint("Coincident", 1, 2, 0, 2))
sketch10.addConstraint(Sketcher.Constraint("Vertical", 1))
sketch10.addConstraint(Sketcher.Constraint("DistanceY", 0, 1, -1, 1, Q("15 mm")))
sketch10.addConstraint(Sketcher.Constraint("DistanceX", -1, 1, 0, 1, Q("7.5 mm")))
sketch10.addConstraint(Sketcher.Constraint("Radius", 0, Q("1.5875 mm")))
sketch10.addConstraint(Sketcher.Constraint("DistanceY", 1, 2, 1, 1, Q("2.245064 mm")))
pocket4 = body.newObject("PartDesign::Pocket", "Pocket003")
pocket4.Profile = sketch10
pocket4.Type = "UpToFirst"
pocket4.Reversed = True

sketch11 = body.newObject("Sketcher::SketchObject", "Sketch010")
sketch11.AttachmentSupport = (doc.getObject("XZ_Plane"), [""])
sketch11.MapMode = "FlatFace"
sketch11.AttachmentOffset = App.Placement(App.Vector(0, 0, -3.175), App.Rotation())
sketch11.addGeometry(Part.ArcOfCircle(Part.Circle(App.Vector(8.6, -33.9, 0), App.Vector(0, 0, 1), 1.6), math.radians(135), math.radians(225)), False)
sketch11.addGeometry(Part.LineSegment(App.Vector(7.5, -32.8, 0), App.Vector(7.5, -35, 0)), False)
sketch11.addConstraint(Sketcher.Constraint("Coincident", 0, 1, 1, 1))
sketch11.addConstraint(Sketcher.Constraint("Coincident", 1, 2, 0, 2))
sketch11.addConstraint(Sketcher.Constraint("Vertical", 1))
sketch11.addConstraint(Sketcher.Constraint("DistanceY", 1, 2, -1, 1, Q("35 mm")))
sketch11.addConstraint(Sketcher.Constraint("DistanceX", -1, 1, 0, 1, Q("7.5 mm")))
sketch11.addConstraint(Sketcher.Constraint("Radius", 0, Q("1.5875 mm")))
sketch11.addConstraint(Sketcher.Constraint("DistanceY", 1, 2, 1, 1, Q("2.245064 mm")))
pocket5 = body.newObject("PartDesign::Pocket", "Pocket004")
pocket5.Profile = sketch11
pocket5.Type = "UpToFirst"
pocket5.Reversed = True

sketch12 = body.newObject("Sketcher::SketchObject", "Sketch011")
sketch12.AttachmentSupport = (doc.getObject("XZ_Plane"), [""])
sketch12.MapMode = "FlatFace"
sketch12.AttachmentOffset = App.Placement(App.Vector(0, 0, -3.175), App.Rotation())
sketch12.addGeometry(Part.ArcOfCircle(Part.Circle(App.Vector(8.6, -33.9, 0), App.Vector(0, 0, 1), 1.6), math.radians(-135), math.radians(-45)), False)
sketch12.addGeometry(Part.LineSegment(App.Vector(7.5, -35, 0), App.Vector(9.7, -35, 0)), False)
sketch12.addConstraint(Sketcher.Constraint("Coincident", 0, 1, 1, 1))
sketch12.addConstraint(Sketcher.Constraint("Coincident", 1, 2, 0, 2))
sketch12.addConstraint(Sketcher.Constraint("Horizontal", 1))
sketch12.addConstraint(Sketcher.Constraint("DistanceY", 0, 1, -1, 1, Q("35 mm")))
sketch12.addConstraint(Sketcher.Constraint("DistanceX", -1, 1, 0, 1, Q("7.5 mm")))
sketch12.addConstraint(Sketcher.Constraint("Radius", 0, Q("1.5875 mm")))
sketch12.addConstraint(Sketcher.Constraint("DistanceX", 1, 1, 1, 2, Q("2.245064 mm")))
pocket6 = body.newObject("PartDesign::Pocket", "Pocket005")
pocket6.Profile = sketch12
pocket6.Type = "UpToFirst"
pocket6.Reversed = True

sketch13 = body.newObject("Sketcher::SketchObject", "Sketch012")
sketch13.AttachmentSupport = (doc.getObject("XZ_Plane"), [""])
sketch13.MapMode = "FlatFace"
sketch13.AttachmentOffset = App.Placement(App.Vector(0, 0, -3.175), App.Rotation())
sketch13.addGeometry(Part.ArcOfCircle(Part.Circle(App.Vector(-8.6, -33.9, 0), App.Vector(0, 0, 1), 1.6), math.radians(-45), math.radians(0)), False)
sketch13.addGeometry(Part.LineSegment(App.Vector(-7.5, -35, 0), App.Vector(-7.5, -32.8, 0)), False)
sketch13.addGeometry(Part.ArcOfCircle(Part.Circle(App.Vector(-8.6, -33.9, 0), App.Vector(0, 0, 1), 1.6), math.radians(0), math.radians(45)), False)
sketch13.addConstraint(Sketcher.Constraint("Coincident", 0, 1, 1, 1))
sketch13.addConstraint(Sketcher.Constraint("Coincident", 1, 2, 2, 2))
sketch13.addConstraint(Sketcher.Constraint("Tangent", 2, 1, 0, 2))
sketch13.addConstraint(Sketcher.Constraint("Vertical", 1))
sketch13.addConstraint(Sketcher.Constraint("Equal", 0, 2))
sketch13.addConstraint(Sketcher.Constraint("Horizontal", 0, 3, 2, 1))
sketch13.addConstraint(Sketcher.Constraint("DistanceY", 0, 1, -1, 1, Q("35 mm")))
sketch13.addConstraint(Sketcher.Constraint("DistanceX", 0, 1, -1, 1, Q("7.5 mm")))
sketch13.addConstraint(Sketcher.Constraint("Radius", 0, Q("1.5875 mm")))
sketch13.addConstraint(Sketcher.Constraint("DistanceY", 1, 1, 1, 2, Q("2.245064 mm")))
pocket7 = body.newObject("PartDesign::Pocket", "Pocket006")
pocket7.Profile = sketch13
pocket7.Type = "UpToFirst"
pocket7.Reversed = True

sketch14 = body.newObject("Sketcher::SketchObject", "Sketch013")
sketch14.AttachmentSupport = (doc.getObject("XZ_Plane"), [""])
sketch14.MapMode = "FlatFace"
sketch14.AttachmentOffset = App.Placement(App.Vector(0, 0, -3.175), App.Rotation())
sketch14.addGeometry(Part.ArcOfCircle(Part.Circle(App.Vector(-8.6, -33.9, 0), App.Vector(0, 0, 1), 1.6), math.radians(-135), math.radians(-45)), False)
sketch14.addGeometry(Part.LineSegment(App.Vector(-9.7, -35, 0), App.Vector(-7.5, -35, 0)), False)
sketch14.addConstraint(Sketcher.Constraint("Coincident", 0, 1, 1, 1))
sketch14.addConstraint(Sketcher.Constraint("Coincident", 1, 2, 0, 2))
sketch14.addConstraint(Sketcher.Constraint("Horizontal", 1))
sketch14.addConstraint(Sketcher.Constraint("DistanceY", 0, 1, -1, 1, Q("35 mm")))
sketch14.addConstraint(Sketcher.Constraint("DistanceX", 1, 2, -1, 1, Q("7.5 mm")))
sketch14.addConstraint(Sketcher.Constraint("Radius", 0, Q("1.5875 mm")))
sketch14.addConstraint(Sketcher.Constraint("DistanceX", 1, 1, 1, 2, Q("2.245064 mm")))
pocket8 = body.newObject("PartDesign::Pocket", "Pocket007")
pocket8.Profile = sketch14
pocket8.Type = "UpToFirst"
pocket8.Reversed = True
doc.recompute()

fillet = body.newObject("PartDesign::Fillet", "Fillet")
fillet.Base = (pocket8, edges_at(pocket8, [
    (-7.5, 0, -45),
    (9.697, 0, 20.303),
    (7.5, 0, -58.824),
    (7.5, 0, -45),
    (16.615, 0, -15),
    (51.476, 0, -29.44),
    (46.898, 0, 36.291),
    (57.216, 0, -15.582),
    (22.469, 0, -1.189),
    (20.303, 0, 9.697),
]))
fillet.Radius = 3.175

sketch15 = body.newObject("Sketcher::SketchObject", "Sketch014")
sketch15.AttachmentSupport = (doc.getObject("XZ_Plane"), [""])
sketch15.MapMode = "FlatFace"
sketch15.AttachmentOffset = App.Placement(App.Vector(0, 0, -3.175), App.Rotation())
sketch15.addGeometry(Part.Circle(App.Vector(60.5, 28.2, 0), App.Vector(0, 0, 1), 3.4), False)
sketch15.addConstraint(Sketcher.Constraint("Diameter", 0, Q("6.7564 mm")))
sketch15.addConstraint(Sketcher.Constraint("DistanceY", -1, 1, 0, 3, Q("28.2309 mm")))
sketch15.addConstraint(Sketcher.Constraint("DistanceX", -1, 1, 0, 3, Q("60.54136 mm")))
doc.recompute()
hole5 = body.newObject("PartDesign::Hole", "Hole004")
hole5.Profile = sketch15
hole5.ThreadType = "None"
hole5.Diameter = 6.7564
hole5.DepthType = "ThroughAll"
hole5.Reversed = True

doc.recompute()
